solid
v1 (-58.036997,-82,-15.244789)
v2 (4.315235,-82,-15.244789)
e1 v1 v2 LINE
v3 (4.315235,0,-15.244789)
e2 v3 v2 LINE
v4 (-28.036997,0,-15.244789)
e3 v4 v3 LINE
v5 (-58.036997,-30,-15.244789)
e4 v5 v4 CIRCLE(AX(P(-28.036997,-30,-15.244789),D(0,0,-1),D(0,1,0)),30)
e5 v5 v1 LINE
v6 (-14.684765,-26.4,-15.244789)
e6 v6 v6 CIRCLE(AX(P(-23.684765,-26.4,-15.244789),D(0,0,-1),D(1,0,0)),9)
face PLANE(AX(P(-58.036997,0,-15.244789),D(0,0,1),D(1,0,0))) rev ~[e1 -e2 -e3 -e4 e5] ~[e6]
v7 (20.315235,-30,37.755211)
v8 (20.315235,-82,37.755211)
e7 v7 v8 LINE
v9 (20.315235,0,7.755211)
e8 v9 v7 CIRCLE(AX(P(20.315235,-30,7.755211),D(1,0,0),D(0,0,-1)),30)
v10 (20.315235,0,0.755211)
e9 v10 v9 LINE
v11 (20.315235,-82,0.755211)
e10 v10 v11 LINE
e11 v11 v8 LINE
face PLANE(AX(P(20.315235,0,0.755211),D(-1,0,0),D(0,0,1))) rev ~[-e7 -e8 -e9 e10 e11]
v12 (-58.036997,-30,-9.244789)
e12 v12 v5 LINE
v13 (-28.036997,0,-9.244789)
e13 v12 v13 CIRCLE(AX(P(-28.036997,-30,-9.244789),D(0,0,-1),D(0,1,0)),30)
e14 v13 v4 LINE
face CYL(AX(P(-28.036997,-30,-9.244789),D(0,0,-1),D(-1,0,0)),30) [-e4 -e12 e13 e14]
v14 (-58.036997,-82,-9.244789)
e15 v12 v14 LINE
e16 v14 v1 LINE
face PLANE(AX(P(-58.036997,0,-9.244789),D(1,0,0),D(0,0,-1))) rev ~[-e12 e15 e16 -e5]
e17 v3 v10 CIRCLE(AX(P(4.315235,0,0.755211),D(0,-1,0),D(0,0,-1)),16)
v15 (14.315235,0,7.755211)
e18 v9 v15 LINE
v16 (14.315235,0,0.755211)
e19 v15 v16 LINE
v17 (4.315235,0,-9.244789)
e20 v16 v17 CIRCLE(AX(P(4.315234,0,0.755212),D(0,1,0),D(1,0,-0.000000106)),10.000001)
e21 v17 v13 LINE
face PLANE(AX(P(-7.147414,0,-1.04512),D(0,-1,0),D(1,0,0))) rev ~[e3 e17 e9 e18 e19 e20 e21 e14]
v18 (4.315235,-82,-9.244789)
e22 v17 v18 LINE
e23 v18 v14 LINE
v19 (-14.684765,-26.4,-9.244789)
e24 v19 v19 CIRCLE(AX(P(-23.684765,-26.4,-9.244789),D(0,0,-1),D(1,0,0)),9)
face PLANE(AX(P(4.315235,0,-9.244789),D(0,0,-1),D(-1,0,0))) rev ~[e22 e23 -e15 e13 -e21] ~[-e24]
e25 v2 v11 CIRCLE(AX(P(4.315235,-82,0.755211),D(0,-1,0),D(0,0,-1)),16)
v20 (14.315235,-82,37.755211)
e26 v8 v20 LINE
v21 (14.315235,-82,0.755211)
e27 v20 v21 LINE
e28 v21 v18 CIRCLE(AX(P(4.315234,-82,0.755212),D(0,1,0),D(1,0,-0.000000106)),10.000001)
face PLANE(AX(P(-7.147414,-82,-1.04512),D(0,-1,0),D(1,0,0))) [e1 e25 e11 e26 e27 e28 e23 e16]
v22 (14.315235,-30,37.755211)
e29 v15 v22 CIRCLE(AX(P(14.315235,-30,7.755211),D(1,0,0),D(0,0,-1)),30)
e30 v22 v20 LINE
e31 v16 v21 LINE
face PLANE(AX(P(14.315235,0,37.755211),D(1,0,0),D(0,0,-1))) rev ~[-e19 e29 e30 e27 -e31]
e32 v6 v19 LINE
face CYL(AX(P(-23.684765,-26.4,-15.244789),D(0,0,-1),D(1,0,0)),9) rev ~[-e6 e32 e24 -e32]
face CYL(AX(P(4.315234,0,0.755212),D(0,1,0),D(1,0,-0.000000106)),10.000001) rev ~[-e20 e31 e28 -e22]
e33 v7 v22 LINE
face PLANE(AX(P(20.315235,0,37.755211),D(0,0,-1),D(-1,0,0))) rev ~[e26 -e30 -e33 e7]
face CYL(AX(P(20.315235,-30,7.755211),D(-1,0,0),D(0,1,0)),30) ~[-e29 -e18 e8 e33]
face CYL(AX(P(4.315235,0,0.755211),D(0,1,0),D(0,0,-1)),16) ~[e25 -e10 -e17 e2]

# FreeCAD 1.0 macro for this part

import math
import FreeCAD as App
import Part
import Sketcher
from FreeCAD import Vector
Q = App.Units.Quantity


def edges_at(feature, points):
    """Names of the edges that pass closest to the given points."""
    edges = feature.Shape.Edges
    near = lambda p: min(range(len(edges)), key=lambda i: edges[i].distToShape(Part.Vertex(*p))[0])
    return sorted({f"Edge{near(p) + 1}" for p in points})

doc = App.newDocument("Part")
body = doc.addObject("PartDesign::Body", "Body")

sketch1 = body.newObject("Sketcher::SketchObject", "Sketch")
sketch1.AttachmentSupport = (doc.getObject("XZ_Plane"), [""])
sketch1.MapMode = "FlatFace"
sketch1.addGeometry([
    Part.LineSegment(Vector(-58, -9, 0), Vector(-58, -15, 0)),
    Part.LineSegment(Vector(-58, -15, 0), Vector(4, -15, 0)),
    Part.ArcOfCircle(Part.Circle(Vector(4, 1, 0), Vector(0, 0, 1), 16), math.radians(-90), math.radians(0)),
    Part.LineSegment(Vector(20, 1, 0), Vector(20, 38, 0)),
    Part.LineSegment(Vector(20, 38, 0), Vector(14, 38, 0)),
    Part.LineSegment(Vector(14, 38, 0), Vector(14, 1, 0)),
    Part.ArcOfCircle(Part.Circle(Vector(4, 1, 0), Vector(0, 0, 1), 10), math.radians(-90), math.radians(0)),
    Part.LineSegment(Vector(4, -9, 0), Vector(-58, -9, 0)),
], False)
sketch1.addConstraint([
    Sketcher.Constraint("Coincident", 0, 2, 1, 1),
    Sketcher.Constraint("Tangent", 1, 2, 2, 1),
    Sketcher.Constraint("Tangent", 2, 2, 3, 1),
    Sketcher.Constraint("Coincident", 3, 2, 4, 1),
    Sketcher.Constraint("Coincident", 4, 2, 5, 1),
    Sketcher.Constraint("Tangent", 5, 2, 6, 2),
    Sketcher.Constraint("Tangent", 6, 1, 7, 1),
    Sketcher.Constraint("Coincident", 7, 2, 0, 1),
    Sketcher.Constraint("Vertical", 0),
    Sketcher.Constraint("Horizontal", 1),
    Sketcher.Constraint("Vertical", 3),
    Sketcher.Constraint("Horizontal", 4),
    Sketcher.Constraint("Vertical", 5),
    Sketcher.Constraint("Horizontal", 7),
    Sketcher.Constraint("Coincident", 6, 3, 2, 3),
    Sketcher.Constraint("Radius", 2, Q("16 mm")),
    Sketcher.Constraint("Radius", 6, Q("10.000001 mm")),
    Sketcher.Constraint("DistanceY", 3, 1, 3, 2, Q("37 mm")),
    Sketcher.Constraint("DistanceX", 1, 1, 1, 2, Q("62.352232 mm")),
    Sketcher.Constraint("DistanceY", -1, 1, 2, 3, Q("0.755211 mm")),
    Sketcher.Constraint("DistanceX", -1, 1, 2, 3, Q("4.315235 mm")),
])
pad1 = body.newObject("PartDesign::Pad", "Pad")
pad1.Profile = sketch1
pad1.Length = 82

sketch2 = body.newObject("Sketcher::SketchObject", "Sketch001")
sketch2.AttachmentSupport = (doc.getObject("XY_Plane"), [""])
sketch2.MapMode = "FlatFace"
sketch2.AttachmentOffset = App.Placement(Vector(0, 0, -15.244789), App.Rotation())
sketch2.addGeometry(Part.Circle(Vector(-24, -26, 0), Vector(0, 0, 1), 9), False)
sketch2.addConstraint([
    Sketcher.Constraint("Diameter", 0, Q("18 mm")),
    Sketcher.Constraint("DistanceY", 0, 3, -1, 1, Q("26.4 mm")),
    Sketcher.Constraint("DistanceX", 0, 3, -1, 1, Q("23.684765 mm")),
])
pocket1 = body.newObject("PartDesign::Pocket", "Pocket")
pocket1.Profile = sketch2
pocket1.Length = 25
pocket1.Reversed = True
doc.recompute()

fillet = body.newObject("PartDesign::Fillet", "Fillet")
fillet.Base = (pocket1, edges_at(pocket1, [(-58.037, 0, -12.245), (17.315, 0, 37.755)]))
fillet.Radius = 30

doc.recompute()
